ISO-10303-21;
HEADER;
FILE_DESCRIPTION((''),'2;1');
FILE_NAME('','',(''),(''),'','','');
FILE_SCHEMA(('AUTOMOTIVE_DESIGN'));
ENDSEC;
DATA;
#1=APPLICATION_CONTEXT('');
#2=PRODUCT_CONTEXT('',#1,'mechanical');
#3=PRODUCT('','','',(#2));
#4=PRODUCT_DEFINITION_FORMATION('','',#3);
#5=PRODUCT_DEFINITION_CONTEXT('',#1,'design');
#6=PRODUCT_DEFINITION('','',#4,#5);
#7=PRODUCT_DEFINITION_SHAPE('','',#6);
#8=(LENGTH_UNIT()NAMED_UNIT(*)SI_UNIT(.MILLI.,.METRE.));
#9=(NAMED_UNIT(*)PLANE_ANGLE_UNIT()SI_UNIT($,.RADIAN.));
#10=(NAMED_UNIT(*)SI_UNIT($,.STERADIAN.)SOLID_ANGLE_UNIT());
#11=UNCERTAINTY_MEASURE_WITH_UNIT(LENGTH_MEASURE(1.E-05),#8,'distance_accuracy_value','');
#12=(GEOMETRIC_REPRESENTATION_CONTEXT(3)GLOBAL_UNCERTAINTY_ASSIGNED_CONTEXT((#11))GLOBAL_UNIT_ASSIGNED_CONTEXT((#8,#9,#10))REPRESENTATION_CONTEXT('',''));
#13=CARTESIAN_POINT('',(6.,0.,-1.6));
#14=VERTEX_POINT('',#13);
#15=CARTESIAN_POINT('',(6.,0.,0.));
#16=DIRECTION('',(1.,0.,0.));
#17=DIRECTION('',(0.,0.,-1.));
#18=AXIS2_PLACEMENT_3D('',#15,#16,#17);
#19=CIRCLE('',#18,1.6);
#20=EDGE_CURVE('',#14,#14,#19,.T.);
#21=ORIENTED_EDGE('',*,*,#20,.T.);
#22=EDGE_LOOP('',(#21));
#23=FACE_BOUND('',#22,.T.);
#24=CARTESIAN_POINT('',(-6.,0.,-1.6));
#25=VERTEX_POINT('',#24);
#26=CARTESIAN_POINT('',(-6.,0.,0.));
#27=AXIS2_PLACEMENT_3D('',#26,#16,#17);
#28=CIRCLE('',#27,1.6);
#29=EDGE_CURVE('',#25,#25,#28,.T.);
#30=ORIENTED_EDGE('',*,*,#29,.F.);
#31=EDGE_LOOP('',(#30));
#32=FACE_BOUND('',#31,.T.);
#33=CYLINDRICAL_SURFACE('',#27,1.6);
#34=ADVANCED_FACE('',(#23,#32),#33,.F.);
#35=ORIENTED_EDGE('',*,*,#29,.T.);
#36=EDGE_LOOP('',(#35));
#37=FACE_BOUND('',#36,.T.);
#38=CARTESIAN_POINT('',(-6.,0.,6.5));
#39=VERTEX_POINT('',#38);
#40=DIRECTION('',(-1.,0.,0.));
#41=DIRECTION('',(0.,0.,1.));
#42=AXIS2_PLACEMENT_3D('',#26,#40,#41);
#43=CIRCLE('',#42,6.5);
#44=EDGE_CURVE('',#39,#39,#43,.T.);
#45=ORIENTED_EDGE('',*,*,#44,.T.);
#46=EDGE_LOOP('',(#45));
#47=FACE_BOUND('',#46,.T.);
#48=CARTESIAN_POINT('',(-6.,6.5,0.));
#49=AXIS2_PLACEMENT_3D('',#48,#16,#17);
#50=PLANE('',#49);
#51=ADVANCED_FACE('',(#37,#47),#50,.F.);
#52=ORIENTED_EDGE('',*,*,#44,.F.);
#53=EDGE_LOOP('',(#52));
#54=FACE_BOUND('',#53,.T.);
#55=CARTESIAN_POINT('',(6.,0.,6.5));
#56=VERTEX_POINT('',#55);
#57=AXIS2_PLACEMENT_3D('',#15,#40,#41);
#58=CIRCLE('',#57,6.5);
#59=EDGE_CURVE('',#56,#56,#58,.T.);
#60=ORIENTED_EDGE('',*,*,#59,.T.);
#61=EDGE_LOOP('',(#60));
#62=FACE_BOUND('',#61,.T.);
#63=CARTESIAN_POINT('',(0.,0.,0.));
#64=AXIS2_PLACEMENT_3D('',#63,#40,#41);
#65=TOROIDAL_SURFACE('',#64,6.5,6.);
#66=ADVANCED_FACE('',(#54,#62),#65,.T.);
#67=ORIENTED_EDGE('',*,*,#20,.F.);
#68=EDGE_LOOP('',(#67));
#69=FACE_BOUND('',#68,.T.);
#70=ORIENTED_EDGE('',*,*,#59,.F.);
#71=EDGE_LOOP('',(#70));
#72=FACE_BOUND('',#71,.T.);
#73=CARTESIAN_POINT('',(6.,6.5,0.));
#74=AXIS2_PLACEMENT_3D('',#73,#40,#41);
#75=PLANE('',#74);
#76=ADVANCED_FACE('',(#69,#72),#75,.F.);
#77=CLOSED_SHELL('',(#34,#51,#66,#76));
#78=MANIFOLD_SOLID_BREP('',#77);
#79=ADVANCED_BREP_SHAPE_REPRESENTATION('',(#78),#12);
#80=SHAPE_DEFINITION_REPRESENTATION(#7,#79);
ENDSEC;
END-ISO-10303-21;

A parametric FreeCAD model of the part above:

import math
import FreeCAD as App
import Part
import Sketcher

doc = App.newDocument("Part")
params = doc.addObject("Spreadsheet::Sheet", "Params")
for row, (alias, value) in enumerate([
    ("sketch1_radius", "6 mm"),
    ("sketch1_height", "6.5 mm"),
    ("revolution_angle", "360 deg"),
    ("sketch2_diameter", "3.2 mm"),
], start=1):
    params.set(f"A{row}", alias)
    params.set(f"B{row}", "=" + value)
    params.setAlias(f"B{row}", alias)

body = doc.addObject("PartDesign::Body", "Body")

sketch1 = body.newObject("Sketcher::SketchObject", "Sketch")
sketch1.AttachmentSupport = (doc.getObject("XY_Plane"), [""])
sketch1.MapMode = "FlatFace"
sketch1.addGeometry([
    Part.LineSegment(App.Vector(6, 0, 0), App.Vector(6, 6, 0)),
    Part.ArcOfCircle(Part.Circle(App.Vector(0, 6, 0), App.Vector(0, 0, 1), 6), math.radians(0), math.radians(180)),
    Part.LineSegment(App.Vector(-6, 6, 0), App.Vector(-6, 0, 0)),
    Part.LineSegment(App.Vector(-6, 0, 0), App.Vector(6, 0, 0)),
], False)
sketch1.addConstraint([
    Sketcher.Constraint("Tangent", 0, 2, 1, 1),
    Sketcher.Constraint("Tangent", 1, 2, 2, 1),
    Sketcher.Constraint("Coincident", 2, 2, 3, 1),
    Sketcher.Constraint("Coincident", 3, 2, 0, 1),
    Sketcher.Constraint("Vertical", 0),
    Sketcher.Constraint("Vertical", 2),
    Sketcher.Constraint("Horizontal", 3),
    Sketcher.Constraint("Symmetric", 2, 2, 3, 2, -1, 1),
    Sketcher.Constraint("Radius", 1, 6.0),
    Sketcher.Constraint("DistanceY", 0, 1, 0, 2, 6.5),
])
sketch1.setExpression("Constraints[8]", "Params.sketch1_radius")
sketch1.setExpression("Constraints[9]", "Params.sketch1_height")
revolution = body.newObject("PartDesign::Revolution", "Revolution")
revolution.Profile = sketch1
revolution.ReferenceAxis = (sketch1, ["H_Axis"])
revolution.setExpression("Angle", "Params.revolution_angle")

sketch2 = body.newObject("Sketcher::SketchObject", "Sketch001")
sketch2.AttachmentSupport = (doc.getObject("YZ_Plane"), [""])
sketch2.MapMode = "FlatFace"
sketch2.AttachmentOffset = App.Placement(App.Vector(0, 0, 6), App.Rotation())
sketch2.addGeometry(Part.Circle(App.Vector(0, 0, 0), App.Vector(0, 0, 1), 1.6), False)
sketch2.addConstraint([
    Sketcher.Constraint("Coincident", 0, 3, -1, 1),
    Sketcher.Constraint("Diameter", 0, 3.2),
])
sketch2.setExpression("Constraints[1]", "Params.sketch2_diameter")
pocket1 = body.newObject("PartDesign::Pocket", "Pocket")
pocket1.Profile = sketch2
pocket1.Type = "ThroughAll"

doc.recompute()
